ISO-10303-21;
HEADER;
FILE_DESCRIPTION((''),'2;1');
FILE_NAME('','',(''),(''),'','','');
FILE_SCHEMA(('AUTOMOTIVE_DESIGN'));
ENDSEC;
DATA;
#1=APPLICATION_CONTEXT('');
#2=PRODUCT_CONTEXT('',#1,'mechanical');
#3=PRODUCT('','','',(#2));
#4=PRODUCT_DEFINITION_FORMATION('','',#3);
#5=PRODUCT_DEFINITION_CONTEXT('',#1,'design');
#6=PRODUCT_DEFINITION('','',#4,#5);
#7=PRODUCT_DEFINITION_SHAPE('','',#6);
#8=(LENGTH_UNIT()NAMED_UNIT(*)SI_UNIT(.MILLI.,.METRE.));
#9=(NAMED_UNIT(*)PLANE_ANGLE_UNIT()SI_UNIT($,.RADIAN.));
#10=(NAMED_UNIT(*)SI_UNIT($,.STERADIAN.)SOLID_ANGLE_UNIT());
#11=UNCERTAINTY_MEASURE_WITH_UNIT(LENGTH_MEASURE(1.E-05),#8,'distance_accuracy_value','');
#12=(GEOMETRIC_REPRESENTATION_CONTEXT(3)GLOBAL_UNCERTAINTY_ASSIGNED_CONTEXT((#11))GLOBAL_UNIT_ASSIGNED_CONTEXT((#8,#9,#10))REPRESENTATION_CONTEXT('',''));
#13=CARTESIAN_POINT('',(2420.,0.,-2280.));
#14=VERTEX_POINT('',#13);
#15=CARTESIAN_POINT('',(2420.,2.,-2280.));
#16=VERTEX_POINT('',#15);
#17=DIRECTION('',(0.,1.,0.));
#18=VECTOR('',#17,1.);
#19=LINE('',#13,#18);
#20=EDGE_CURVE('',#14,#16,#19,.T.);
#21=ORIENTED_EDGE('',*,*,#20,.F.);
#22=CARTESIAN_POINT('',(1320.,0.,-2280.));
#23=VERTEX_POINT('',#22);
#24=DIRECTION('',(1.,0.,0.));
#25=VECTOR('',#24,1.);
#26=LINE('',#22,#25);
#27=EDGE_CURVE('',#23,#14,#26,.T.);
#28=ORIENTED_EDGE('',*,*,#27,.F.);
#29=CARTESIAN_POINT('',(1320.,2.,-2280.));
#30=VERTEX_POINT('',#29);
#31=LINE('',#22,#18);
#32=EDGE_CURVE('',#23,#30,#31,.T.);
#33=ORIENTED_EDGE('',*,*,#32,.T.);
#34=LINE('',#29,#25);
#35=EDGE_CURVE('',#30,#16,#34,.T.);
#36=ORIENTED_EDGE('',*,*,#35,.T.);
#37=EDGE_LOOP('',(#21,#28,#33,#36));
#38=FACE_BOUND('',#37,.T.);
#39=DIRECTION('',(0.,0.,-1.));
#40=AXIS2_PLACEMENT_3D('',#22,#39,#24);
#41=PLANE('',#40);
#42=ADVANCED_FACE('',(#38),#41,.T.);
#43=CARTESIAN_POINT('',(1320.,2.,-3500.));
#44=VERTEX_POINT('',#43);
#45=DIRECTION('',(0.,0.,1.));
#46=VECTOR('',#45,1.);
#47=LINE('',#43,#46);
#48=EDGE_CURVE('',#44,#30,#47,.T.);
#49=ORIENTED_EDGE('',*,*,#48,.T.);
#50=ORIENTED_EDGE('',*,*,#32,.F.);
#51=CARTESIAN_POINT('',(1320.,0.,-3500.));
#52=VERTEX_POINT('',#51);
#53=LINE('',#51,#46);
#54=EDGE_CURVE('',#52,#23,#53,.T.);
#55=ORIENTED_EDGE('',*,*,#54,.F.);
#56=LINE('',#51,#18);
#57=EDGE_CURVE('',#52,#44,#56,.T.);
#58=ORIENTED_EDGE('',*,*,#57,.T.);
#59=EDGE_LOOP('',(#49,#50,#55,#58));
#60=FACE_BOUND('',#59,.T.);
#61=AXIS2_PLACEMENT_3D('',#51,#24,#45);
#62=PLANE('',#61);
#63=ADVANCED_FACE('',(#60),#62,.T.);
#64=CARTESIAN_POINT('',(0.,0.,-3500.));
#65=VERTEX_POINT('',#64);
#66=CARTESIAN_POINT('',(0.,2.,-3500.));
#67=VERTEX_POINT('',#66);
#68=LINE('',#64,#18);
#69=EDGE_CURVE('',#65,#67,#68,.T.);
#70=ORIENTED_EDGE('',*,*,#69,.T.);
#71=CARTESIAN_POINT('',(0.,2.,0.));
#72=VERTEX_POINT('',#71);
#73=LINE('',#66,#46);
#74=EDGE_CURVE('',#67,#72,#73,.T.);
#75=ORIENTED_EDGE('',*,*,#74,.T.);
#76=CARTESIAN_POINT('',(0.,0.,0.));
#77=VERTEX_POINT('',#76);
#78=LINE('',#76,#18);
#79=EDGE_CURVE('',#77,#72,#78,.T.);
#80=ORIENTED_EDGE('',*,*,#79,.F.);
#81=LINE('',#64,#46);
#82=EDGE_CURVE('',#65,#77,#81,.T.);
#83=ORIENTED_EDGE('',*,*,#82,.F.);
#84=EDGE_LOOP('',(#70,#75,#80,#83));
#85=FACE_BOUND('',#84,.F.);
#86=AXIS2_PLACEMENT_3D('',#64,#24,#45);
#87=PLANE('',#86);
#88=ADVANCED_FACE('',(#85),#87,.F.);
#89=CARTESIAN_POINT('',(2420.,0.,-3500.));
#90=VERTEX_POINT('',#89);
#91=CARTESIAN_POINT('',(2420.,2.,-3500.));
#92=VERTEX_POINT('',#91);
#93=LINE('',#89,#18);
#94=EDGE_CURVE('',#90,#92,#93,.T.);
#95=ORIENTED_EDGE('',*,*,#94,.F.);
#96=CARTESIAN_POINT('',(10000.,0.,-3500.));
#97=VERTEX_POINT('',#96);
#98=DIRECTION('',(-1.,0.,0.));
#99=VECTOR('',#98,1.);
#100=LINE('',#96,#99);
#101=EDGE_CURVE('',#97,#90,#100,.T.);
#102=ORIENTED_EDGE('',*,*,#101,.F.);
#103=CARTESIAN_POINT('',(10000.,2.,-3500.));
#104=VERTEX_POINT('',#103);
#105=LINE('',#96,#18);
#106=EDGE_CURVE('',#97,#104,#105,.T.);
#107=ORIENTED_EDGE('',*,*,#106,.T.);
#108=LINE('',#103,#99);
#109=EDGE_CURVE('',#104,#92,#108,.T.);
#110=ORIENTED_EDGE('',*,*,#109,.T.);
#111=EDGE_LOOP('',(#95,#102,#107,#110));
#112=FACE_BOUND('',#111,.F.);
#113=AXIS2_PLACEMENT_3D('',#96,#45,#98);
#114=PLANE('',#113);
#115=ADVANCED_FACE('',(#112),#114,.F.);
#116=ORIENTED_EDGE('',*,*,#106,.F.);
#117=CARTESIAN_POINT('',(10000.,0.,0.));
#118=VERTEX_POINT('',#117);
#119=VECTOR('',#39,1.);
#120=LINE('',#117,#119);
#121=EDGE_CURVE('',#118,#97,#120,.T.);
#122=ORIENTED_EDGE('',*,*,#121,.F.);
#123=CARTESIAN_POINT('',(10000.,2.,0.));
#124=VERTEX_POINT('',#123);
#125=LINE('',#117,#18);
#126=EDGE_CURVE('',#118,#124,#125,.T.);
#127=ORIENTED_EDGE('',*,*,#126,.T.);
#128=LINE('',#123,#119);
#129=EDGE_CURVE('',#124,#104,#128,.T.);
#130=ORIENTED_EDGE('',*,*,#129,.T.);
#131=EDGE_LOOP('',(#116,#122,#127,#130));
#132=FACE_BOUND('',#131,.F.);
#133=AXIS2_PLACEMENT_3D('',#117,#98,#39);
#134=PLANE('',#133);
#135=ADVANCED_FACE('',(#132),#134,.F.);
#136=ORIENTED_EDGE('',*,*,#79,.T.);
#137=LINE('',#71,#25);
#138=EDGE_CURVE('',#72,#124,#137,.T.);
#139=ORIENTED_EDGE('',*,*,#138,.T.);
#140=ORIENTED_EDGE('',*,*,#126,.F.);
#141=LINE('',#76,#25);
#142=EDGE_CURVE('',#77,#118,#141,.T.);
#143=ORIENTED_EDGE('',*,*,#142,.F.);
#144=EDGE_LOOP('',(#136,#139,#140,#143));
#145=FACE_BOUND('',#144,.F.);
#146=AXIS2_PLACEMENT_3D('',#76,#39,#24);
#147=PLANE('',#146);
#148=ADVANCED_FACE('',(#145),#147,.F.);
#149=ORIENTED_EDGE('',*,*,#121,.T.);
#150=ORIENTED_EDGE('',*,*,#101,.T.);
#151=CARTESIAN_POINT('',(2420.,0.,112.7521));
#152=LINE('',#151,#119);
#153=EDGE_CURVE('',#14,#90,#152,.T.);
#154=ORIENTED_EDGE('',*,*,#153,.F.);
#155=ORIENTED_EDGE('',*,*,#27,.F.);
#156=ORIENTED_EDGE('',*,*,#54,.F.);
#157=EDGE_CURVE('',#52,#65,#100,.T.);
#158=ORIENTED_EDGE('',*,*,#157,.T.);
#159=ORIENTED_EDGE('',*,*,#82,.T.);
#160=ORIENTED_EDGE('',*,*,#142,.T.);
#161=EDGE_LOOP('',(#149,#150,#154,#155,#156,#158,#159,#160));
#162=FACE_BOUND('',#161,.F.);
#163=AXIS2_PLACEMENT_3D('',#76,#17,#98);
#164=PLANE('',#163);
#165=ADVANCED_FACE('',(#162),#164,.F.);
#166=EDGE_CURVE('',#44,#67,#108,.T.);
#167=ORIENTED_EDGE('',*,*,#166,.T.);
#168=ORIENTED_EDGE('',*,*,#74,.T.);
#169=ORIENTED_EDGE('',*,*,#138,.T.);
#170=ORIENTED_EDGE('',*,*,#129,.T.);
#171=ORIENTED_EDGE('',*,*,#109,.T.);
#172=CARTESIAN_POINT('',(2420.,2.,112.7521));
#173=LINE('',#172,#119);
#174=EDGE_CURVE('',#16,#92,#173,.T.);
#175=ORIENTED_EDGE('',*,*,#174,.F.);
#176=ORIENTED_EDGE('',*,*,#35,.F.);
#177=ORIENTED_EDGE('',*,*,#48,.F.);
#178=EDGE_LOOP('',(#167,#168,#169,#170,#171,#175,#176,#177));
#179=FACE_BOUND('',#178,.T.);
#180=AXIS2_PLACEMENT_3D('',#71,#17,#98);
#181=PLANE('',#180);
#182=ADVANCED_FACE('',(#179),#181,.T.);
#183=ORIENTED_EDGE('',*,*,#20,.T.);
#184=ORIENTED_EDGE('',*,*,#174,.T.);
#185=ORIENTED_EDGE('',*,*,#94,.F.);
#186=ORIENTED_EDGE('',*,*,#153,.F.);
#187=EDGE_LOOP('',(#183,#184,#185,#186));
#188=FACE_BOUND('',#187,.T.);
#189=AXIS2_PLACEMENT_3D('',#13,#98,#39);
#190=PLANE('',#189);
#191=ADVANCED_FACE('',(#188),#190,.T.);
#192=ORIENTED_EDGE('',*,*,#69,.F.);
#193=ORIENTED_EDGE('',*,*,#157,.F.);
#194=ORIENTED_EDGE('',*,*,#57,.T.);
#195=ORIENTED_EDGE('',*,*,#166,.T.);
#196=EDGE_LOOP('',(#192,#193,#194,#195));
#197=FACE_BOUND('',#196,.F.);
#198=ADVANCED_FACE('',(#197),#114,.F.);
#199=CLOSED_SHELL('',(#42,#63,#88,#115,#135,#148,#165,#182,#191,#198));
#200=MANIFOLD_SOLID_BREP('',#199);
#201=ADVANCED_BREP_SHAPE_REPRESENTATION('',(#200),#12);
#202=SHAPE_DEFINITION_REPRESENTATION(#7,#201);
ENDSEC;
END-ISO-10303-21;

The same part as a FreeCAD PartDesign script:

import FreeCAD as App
import Part
import Sketcher
from FreeCAD import Vector
Q = App.Units.Quantity


def add_polygon(sketch, points):
    """Adds a closed chain of lines whose ends are joined by coincident constraints."""
    first, n = sketch.GeometryCount, len(points)
    for a, b in zip(points, points[1:] + points[:1]):
        sketch.addGeometry(Part.LineSegment(App.Vector(*a, 0), App.Vector(*b, 0)), False)
    for i in range(n):
        sketch.addConstraint(Sketcher.Constraint("Coincident", first + i, 2, first + (i + 1) % n, 1))

doc = App.newDocument("Part")
body = doc.addObject("PartDesign::Body", "Body")

# Sketch on XZ plane
sketch1 = body.newObject("Sketcher::SketchObject", "Sketch")
sketch1.AttachmentSupport = (doc.getObject("XZ_Plane"), [""])
sketch1.MapMode = "FlatFace"
add_polygon(sketch1, [(0, -3500), (0, 0), (10000, 0), (10000, -3500)])  # lines 0-3
sketch1.addConstraint(Sketcher.Constraint("Vertical", 0))
sketch1.addConstraint(Sketcher.Constraint("Horizontal", 1))
sketch1.addConstraint(Sketcher.Constraint("Vertical", 2))
sketch1.addConstraint(Sketcher.Constraint("Horizontal", 3))
sketch1.addConstraint(Sketcher.Constraint("Coincident", 0, 2, -1, 1))
sketch1.addConstraint(Sketcher.Constraint("DistanceX", 1, 1, 1, 2, Q("10000 mm")))
sketch1.addConstraint(Sketcher.Constraint("DistanceY", 0, 1, 0, 2, Q("3500 mm")))
pad1 = body.newObject("PartDesign::Pad", "Pad")
pad1.Profile = sketch1
pad1.Length = 2
pad1.Reversed = True

# Sketch on XZ plane
sketch2 = body.newObject("Sketcher::SketchObject", "Sketch001")
sketch2.AttachmentSupport = (doc.getObject("XZ_Plane"), [""])
sketch2.MapMode = "FlatFace"
add_polygon(sketch2, [(2420, -3500), (2420, -2280), (1320, -2280), (1320, -3500)])  # lines 0-3
sketch2.addConstraint(Sketcher.Constraint("Vertical", 0))
sketch2.addConstraint(Sketcher.Constraint("Horizontal", 1))
sketch2.addConstraint(Sketcher.Constraint("Vertical", 2))
sketch2.addConstraint(Sketcher.Constraint("Horizontal", 3))
sketch2.addConstraint(Sketcher.Constraint("DistanceX", 1, 2, 1, 1, Q("1100 mm")))
sketch2.addConstraint(Sketcher.Constraint("DistanceY", 0, 1, 0, 2, Q("1220 mm")))
sketch2.addConstraint(Sketcher.Constraint("DistanceX", -1, 1, 0, 2, Q("2420 mm")))
sketch2.addConstraint(Sketcher.Constraint("DistanceY", 0, 2, -1, 1, Q("2280 mm")))
pocket1 = body.newObject("PartDesign::Pocket", "Pocket")
pocket1.Profile = sketch2
pocket1.Length = 2

doc.recompute()
